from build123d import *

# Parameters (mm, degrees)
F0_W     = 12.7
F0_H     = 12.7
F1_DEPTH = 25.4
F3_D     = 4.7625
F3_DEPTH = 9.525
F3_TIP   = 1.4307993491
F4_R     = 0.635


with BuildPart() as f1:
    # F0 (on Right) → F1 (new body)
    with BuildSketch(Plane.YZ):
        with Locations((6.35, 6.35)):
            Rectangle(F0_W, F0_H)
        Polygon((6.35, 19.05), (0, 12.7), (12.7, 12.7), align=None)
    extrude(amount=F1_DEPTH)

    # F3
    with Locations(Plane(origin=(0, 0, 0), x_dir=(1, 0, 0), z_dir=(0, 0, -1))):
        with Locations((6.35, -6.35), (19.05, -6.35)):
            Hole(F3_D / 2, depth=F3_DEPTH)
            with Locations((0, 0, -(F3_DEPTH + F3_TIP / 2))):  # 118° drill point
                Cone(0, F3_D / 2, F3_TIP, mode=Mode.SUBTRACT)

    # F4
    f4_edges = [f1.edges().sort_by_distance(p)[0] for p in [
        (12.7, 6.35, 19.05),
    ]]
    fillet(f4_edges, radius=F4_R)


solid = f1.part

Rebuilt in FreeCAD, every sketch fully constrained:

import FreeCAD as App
import Part
import Sketcher
Q = App.Units.Quantity


def edges_at(feature, points):
    """Names of the edges that pass closest to the given points."""
    edges = feature.Shape.Edges
    near = lambda p: min(range(len(edges)), key=lambda i: edges[i].distToShape(Part.Vertex(*p))[0])
    return sorted({f"Edge{near(p) + 1}" for p in points})

doc = App.newDocument("Part")
body = doc.addObject("PartDesign::Body", "Body")

sketch1 = body.newObject("Sketcher::SketchObject", "Sketch")
sketch1.AttachmentSupport = (doc.getObject("YZ_Plane"), [""])
sketch1.MapMode = "FlatFace"
sketch1.addGeometry([
    Part.LineSegment(App.Vector(0, 12.7, 0), App.Vector(0, 0, 0)),
    Part.LineSegment(App.Vector(0, 0, 0), App.Vector(12.7, 0, 0)),
    Part.LineSegment(App.Vector(12.7, 0, 0), App.Vector(12.7, 12.7, 0)),
    Part.LineSegment(App.Vector(12.7, 12.7, 0), App.Vector(6.35, 19.05, 0)),
    Part.LineSegment(App.Vector(6.35, 19.05, 0), App.Vector(0, 12.7, 0)),
], False)
sketch1.addConstraint([
    Sketcher.Constraint("Coincident", 0, 2, 1, 1),
    Sketcher.Constraint("Coincident", 1, 2, 2, 1),
    Sketcher.Constraint("Coincident", 2, 2, 3, 1),
    Sketcher.Constraint("Coincident", 3, 2, 4, 1),
    Sketcher.Constraint("Coincident", 4, 2, 0, 1),
    Sketcher.Constraint("Vertical", 0),
    Sketcher.Constraint("Horizontal", 1),
    Sketcher.Constraint("Vertical", 2),
    Sketcher.Constraint("Coincident", 0, 2, -1, 1),
    Sketcher.Constraint("Perpendicular", 3, 4),
    Sketcher.Constraint("Horizontal", 2, 2, 4, 2),
    Sketcher.Constraint("Equal", 1, 0),
    Sketcher.Constraint("Equal", 3, 4),
    Sketcher.Constraint("DistanceX", 1, 1, 1, 2, Q("0.5 in")),
])
pad1 = body.newObject("PartDesign::Pad", "Pad")
pad1.Profile = sketch1
pad1.Length = Q("1 in")

sketch2 = body.newObject("Sketcher::SketchObject", "Sketch001")
sketch2.AttachmentSupport = (doc.getObject("XY_Plane"), [""])
sketch2.MapMode = "FlatFace"
sketch2.addGeometry([
    Part.Circle(App.Vector(6.35, 6.35, 0), App.Vector(0, 0, 1), 2.38125),
    Part.Circle(App.Vector(19.05, 6.35, 0), App.Vector(0, 0, 1), 2.38125),
], False)
sketch2.addConstraint([
    Sketcher.Constraint("Equal", 0, 1),
    Sketcher.Constraint("Horizontal", 0, 3, 1, 3),
    Sketcher.Constraint("Diameter", 0, Q("0.1875 in")),
    Sketcher.Constraint("DistanceX", 0, 3, 1, 3, Q("0.5 in")),
    Sketcher.Constraint("DistanceX", -1, 1, 0, 3, Q("0.25 in")),
    Sketcher.Constraint("DistanceY", -1, 1, 0, 3, Q("0.25 in")),
])
doc.recompute()
hole = body.newObject("PartDesign::Hole", "Hole")
hole.Profile = sketch2
hole.ThreadType = "None"
hole.Diameter = Q("0.1875 in")
hole.DepthType = "Dimension"
hole.Depth = Q("0.375 in")
hole.DrillPoint = "Angled"
hole.DrillPointAngle = 118
hole.Reversed = True
doc.recompute()

fillet = body.newObject("PartDesign::Fillet", "Fillet")
fillet.Base = (hole, edges_at(hole, [(12.7, 6.35, 19.05)]))
fillet.Radius = Q("0.025 in")

doc.recompute()
